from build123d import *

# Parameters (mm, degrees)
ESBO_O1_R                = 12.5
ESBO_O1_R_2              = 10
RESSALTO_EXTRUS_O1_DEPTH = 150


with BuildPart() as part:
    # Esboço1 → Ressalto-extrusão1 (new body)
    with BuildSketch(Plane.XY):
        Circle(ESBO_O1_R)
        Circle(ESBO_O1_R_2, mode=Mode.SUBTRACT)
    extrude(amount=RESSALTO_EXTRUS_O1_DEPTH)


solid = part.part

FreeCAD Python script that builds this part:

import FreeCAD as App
import Part
import Sketcher
from FreeCAD import Vector
Q = App.Units.Quantity

doc = App.newDocument("Part")
body = doc.addObject("PartDesign::Body", "Body")

# Sketch on XY plane
sketch1 = body.newObject("Sketcher::SketchObject", "Sketch")
sketch1.AttachmentSupport = (doc.getObject("XY_Plane"), [""])
sketch1.MapMode = "FlatFace"
sketch1.addGeometry([
    Part.Circle(Vector(0, 0, 0), Vector(0, 0, 1), 12),
    Part.Circle(Vector(0, 0, 0), Vector(0, 0, 1), 10),
], False)
sketch1.addConstraint([
    Sketcher.Constraint("Coincident", 0, 3, -1, 1),
    Sketcher.Constraint("Coincident", 1, 3, -1, 1),
    Sketcher.Constraint("Diameter", 0, Q("25 mm")),
    Sketcher.Constraint("Diameter", 1, Q("20 mm")),
])
pad1 = body.newObject("PartDesign::Pad", "Pad")
pad1.Profile = sketch1
pad1.Length = 150

doc.recompute()
